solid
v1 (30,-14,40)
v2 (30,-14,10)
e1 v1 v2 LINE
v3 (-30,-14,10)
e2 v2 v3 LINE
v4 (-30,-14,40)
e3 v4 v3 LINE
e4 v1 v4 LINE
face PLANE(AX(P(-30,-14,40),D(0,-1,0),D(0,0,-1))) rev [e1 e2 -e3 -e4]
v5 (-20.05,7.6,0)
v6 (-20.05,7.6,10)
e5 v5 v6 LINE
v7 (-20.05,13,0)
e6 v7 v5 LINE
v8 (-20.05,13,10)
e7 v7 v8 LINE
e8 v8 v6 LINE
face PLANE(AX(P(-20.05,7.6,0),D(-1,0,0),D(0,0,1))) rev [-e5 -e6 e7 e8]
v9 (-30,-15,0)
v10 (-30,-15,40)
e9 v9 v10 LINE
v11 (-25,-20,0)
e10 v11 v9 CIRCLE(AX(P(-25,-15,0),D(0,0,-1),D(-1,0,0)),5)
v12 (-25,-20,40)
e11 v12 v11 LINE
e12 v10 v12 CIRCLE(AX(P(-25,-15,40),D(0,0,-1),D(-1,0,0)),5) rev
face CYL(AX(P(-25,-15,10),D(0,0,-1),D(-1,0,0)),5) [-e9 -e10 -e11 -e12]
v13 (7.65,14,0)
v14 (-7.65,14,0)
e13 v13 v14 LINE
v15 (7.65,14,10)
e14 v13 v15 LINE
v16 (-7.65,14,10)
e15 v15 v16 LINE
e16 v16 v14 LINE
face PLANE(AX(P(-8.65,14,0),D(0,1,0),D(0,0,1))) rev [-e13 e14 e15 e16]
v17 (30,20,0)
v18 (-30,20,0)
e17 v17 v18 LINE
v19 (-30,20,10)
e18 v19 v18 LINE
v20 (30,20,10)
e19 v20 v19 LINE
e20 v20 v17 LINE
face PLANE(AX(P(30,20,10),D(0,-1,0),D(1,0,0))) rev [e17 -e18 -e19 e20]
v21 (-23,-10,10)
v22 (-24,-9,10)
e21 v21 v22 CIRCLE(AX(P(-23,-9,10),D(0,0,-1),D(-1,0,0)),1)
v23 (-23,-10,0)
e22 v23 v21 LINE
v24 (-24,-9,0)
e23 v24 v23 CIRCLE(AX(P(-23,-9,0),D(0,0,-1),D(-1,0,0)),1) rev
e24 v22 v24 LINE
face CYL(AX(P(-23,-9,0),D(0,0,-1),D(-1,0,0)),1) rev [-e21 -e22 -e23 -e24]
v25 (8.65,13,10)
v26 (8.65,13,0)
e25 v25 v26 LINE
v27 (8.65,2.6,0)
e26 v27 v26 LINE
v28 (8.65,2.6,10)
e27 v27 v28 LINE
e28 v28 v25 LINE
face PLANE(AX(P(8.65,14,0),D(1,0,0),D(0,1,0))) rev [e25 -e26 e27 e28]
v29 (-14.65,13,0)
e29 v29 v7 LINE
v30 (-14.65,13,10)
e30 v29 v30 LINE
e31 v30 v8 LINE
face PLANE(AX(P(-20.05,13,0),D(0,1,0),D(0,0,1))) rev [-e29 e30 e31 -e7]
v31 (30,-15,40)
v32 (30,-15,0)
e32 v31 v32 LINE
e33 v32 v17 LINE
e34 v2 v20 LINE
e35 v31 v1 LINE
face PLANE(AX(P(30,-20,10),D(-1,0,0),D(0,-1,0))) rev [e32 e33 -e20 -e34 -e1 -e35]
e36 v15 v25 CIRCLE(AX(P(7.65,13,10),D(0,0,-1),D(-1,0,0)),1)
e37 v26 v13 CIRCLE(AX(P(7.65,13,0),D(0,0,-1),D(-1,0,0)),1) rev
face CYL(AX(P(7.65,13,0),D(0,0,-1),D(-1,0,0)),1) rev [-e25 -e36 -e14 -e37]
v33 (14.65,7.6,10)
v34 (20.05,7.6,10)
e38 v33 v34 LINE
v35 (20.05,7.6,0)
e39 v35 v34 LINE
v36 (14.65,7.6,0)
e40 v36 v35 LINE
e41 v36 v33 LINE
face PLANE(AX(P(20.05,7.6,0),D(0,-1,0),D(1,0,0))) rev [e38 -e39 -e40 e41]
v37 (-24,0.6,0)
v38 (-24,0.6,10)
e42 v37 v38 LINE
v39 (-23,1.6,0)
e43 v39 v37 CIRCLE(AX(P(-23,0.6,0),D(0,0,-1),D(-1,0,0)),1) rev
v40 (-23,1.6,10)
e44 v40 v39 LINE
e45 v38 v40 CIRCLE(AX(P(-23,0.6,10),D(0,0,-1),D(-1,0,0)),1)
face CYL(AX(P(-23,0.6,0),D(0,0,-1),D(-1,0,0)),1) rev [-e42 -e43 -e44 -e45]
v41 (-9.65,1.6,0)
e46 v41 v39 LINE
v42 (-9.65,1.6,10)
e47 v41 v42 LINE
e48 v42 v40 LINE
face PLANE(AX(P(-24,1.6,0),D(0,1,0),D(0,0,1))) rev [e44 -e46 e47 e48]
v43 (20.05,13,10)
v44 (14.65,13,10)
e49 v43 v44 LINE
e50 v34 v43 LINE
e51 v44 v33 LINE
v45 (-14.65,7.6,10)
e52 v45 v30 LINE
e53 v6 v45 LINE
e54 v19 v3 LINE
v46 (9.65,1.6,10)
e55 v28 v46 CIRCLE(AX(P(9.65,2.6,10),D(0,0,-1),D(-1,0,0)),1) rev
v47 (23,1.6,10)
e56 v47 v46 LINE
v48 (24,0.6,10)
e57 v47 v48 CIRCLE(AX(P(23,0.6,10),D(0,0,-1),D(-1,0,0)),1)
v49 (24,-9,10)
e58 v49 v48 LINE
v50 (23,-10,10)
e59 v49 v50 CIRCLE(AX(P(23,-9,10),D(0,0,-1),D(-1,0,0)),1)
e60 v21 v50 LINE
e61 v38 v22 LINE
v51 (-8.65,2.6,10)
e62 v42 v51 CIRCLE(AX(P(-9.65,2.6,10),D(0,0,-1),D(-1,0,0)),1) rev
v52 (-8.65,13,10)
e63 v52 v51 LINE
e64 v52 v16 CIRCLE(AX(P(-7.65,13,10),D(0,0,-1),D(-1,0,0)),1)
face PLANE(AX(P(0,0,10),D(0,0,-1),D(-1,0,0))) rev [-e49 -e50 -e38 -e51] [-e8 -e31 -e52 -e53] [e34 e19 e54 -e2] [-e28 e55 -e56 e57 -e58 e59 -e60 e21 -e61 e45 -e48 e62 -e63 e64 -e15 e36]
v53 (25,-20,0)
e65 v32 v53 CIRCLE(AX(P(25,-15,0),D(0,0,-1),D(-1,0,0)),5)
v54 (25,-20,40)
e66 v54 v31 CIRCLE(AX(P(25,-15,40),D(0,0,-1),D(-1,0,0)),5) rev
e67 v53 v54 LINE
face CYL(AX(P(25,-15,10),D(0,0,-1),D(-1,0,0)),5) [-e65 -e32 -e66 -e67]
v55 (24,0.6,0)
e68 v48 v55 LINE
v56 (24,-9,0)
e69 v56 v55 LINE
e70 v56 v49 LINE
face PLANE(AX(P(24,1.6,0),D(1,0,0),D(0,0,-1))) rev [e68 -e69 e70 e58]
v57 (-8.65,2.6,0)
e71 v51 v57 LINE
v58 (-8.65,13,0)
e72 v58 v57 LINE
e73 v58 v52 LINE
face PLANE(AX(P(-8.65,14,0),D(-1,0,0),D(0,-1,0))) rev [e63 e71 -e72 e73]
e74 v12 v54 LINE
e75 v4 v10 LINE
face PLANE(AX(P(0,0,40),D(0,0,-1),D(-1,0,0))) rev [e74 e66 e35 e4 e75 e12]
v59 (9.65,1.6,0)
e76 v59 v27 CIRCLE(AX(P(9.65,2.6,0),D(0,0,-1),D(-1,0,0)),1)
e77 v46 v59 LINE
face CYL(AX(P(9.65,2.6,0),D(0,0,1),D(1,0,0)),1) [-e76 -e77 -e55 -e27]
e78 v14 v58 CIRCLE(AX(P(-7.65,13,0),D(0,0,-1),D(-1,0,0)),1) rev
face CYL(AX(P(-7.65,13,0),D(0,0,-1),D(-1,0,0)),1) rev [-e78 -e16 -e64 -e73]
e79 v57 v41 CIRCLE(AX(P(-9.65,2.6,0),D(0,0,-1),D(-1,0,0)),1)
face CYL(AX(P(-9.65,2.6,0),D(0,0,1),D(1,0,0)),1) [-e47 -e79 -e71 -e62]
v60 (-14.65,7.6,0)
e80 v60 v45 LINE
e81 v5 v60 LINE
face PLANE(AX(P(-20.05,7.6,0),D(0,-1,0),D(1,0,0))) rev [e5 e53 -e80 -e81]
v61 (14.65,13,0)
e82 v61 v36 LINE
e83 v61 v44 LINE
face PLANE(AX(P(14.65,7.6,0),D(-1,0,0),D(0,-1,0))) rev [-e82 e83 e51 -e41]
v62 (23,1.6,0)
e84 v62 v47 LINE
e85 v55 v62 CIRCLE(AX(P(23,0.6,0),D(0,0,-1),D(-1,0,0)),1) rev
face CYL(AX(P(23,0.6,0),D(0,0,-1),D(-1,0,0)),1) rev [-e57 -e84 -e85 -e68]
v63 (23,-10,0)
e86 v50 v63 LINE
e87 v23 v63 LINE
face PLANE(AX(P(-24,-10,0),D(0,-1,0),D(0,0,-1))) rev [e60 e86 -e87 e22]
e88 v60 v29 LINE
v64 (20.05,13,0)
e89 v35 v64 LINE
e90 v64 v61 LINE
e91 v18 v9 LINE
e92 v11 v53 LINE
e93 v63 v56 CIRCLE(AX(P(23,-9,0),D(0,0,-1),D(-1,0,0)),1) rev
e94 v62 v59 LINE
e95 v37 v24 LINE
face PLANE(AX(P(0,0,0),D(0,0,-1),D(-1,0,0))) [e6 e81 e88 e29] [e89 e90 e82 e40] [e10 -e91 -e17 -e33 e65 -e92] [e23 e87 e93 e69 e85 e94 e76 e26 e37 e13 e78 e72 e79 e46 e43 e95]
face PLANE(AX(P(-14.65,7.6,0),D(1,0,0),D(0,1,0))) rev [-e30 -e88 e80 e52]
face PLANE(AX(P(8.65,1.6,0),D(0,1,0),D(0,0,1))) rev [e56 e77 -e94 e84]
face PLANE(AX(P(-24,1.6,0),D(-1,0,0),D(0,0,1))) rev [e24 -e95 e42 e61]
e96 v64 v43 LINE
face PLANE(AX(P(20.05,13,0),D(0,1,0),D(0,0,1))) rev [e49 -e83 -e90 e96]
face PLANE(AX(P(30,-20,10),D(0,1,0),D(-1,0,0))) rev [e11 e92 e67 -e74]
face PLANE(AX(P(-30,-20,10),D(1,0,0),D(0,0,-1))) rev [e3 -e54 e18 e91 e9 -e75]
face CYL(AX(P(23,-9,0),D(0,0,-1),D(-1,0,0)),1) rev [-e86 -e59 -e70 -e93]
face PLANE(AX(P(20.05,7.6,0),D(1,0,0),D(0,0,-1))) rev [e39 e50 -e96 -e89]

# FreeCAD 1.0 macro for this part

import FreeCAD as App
import Part
import Sketcher

V = App.Vector
Q = App.Units.Quantity


def edges_at(feature, points):
    """Names of the edges that pass closest to the given points."""
    edges = feature.Shape.Edges
    near = lambda p: min(range(len(edges)), key=lambda i: edges[i].distToShape(Part.Vertex(*p))[0])
    return sorted({f"Edge{near(p) + 1}" for p in points})


def add_polygon(sketch, points):
    """Adds a closed chain of lines whose ends are joined by coincident constraints."""
    first, n = sketch.GeometryCount, len(points)
    for a, b in zip(points, points[1:] + points[:1]):
        sketch.addGeometry(Part.LineSegment(App.Vector(*a, 0), App.Vector(*b, 0)), False)
    for i in range(n):
        sketch.addConstraint(Sketcher.Constraint("Coincident", first + i, 2, first + (i + 1) % n, 1))

doc = App.newDocument("Part")
body = doc.addObject("PartDesign::Body", "Body")

# Sketch on XY plane
sketch1 = body.newObject("Sketcher::SketchObject", "Sketch")
sketch1.AttachmentSupport = (doc.getObject("XY_Plane"), [""])
sketch1.MapMode = "FlatFace"
add_polygon(sketch1, [(-30, -20), (30, -20), (30, 20), (-30, 20)])  # lines 0-3
sketch1.addConstraint(Sketcher.Constraint("Horizontal", 0))
sketch1.addConstraint(Sketcher.Constraint("Vertical", 1))
sketch1.addConstraint(Sketcher.Constraint("Horizontal", 2))
sketch1.addConstraint(Sketcher.Constraint("Vertical", 3))
sketch1.addConstraint(Sketcher.Constraint("Symmetric", 0, 2, 2, 2, -1, 1))
sketch1.addConstraint(Sketcher.Constraint("DistanceX", 0, 1, 0, 2, Q("60 mm")))
sketch1.addConstraint(Sketcher.Constraint("DistanceY", 1, 1, 1, 2, Q("40 mm")))
pad1 = body.newObject("PartDesign::Pad", "Pad")
pad1.Profile = sketch1
pad1.Length = 10

# Sketch on XY plane
sketch2 = body.newObject("Sketcher::SketchObject", "Sketch001")
sketch2.AttachmentSupport = (doc.getObject("XY_Plane"), [""])
sketch2.MapMode = "FlatFace"
sketch2.AttachmentOffset = App.Placement(V(0, 0, 10), App.Rotation())
add_polygon(sketch2, [(-20.05, 13), (-20.05, 7.6), (-14.65, 7.6), (-14.65, 13)])  # lines 0-3
add_polygon(sketch2, [(14.65, 13), (14.65, 7.6), (20.05, 7.6), (20.05, 13)])  # lines 4-7
sketch2.addConstraint(Sketcher.Constraint("Vertical", 0))
sketch2.addConstraint(Sketcher.Constraint("Horizontal", 1))
sketch2.addConstraint(Sketcher.Constraint("Vertical", 2))
sketch2.addConstraint(Sketcher.Constraint("Horizontal", 3))
sketch2.addConstraint(Sketcher.Constraint("Vertical", 4))
sketch2.addConstraint(Sketcher.Constraint("Horizontal", 5))
sketch2.addConstraint(Sketcher.Constraint("Vertical", 6))
sketch2.addConstraint(Sketcher.Constraint("Horizontal", 7))
sketch2.addConstraint(Sketcher.Constraint("Symmetric", 1, 2, 4, 2, -2))
sketch2.addConstraint(Sketcher.Constraint("Symmetric", 3, 2, 6, 2, -2))
sketch2.addConstraint(Sketcher.Constraint("Equal", 7, 0))
sketch2.addConstraint(Sketcher.Constraint("DistanceX", 1, 1, 1, 2, Q("5.4 mm")))
sketch2.addConstraint(Sketcher.Constraint("DistanceY", -1, 1, 2, 2, Q("13 mm")))
sketch2.addConstraint(Sketcher.Constraint("DistanceX", 1, 2, 4, 2, Q("29.3 mm")))
pocket1 = body.newObject("PartDesign::Pocket", "Pocket")
pocket1.Profile = sketch2
pocket1.Type = "ThroughAll"

# Sketch on XY plane
sketch3 = body.newObject("Sketcher::SketchObject", "Sketch002")
sketch3.AttachmentSupport = (doc.getObject("XY_Plane"), [""])
sketch3.MapMode = "FlatFace"
sketch3.AttachmentOffset = App.Placement(V(0, 0, 10), App.Rotation())
add_polygon(sketch3, [(-30, -14), (-30, -20), (30, -20), (30, -14)])  # lines 0-3
sketch3.addConstraint(Sketcher.Constraint("Vertical", 0))
sketch3.addConstraint(Sketcher.Constraint("Horizontal", 1))
sketch3.addConstraint(Sketcher.Constraint("Vertical", 2))
sketch3.addConstraint(Sketcher.Constraint("Horizontal", 3))
sketch3.addConstraint(Sketcher.Constraint("DistanceX", 1, 1, 1, 2, Q("60 mm")))
sketch3.addConstraint(Sketcher.Constraint("DistanceY", 0, 2, 0, 1, Q("6 mm")))
sketch3.addConstraint(Sketcher.Constraint("DistanceX", 0, 2, -1, 1, Q("30 mm")))
sketch3.addConstraint(Sketcher.Constraint("DistanceY", 0, 2, -1, 1, Q("20 mm")))
pad2 = body.newObject("PartDesign::Pad", "Pad001")
pad2.Profile = sketch3
pad2.Length = 30

# Sketch on XY plane
sketch4 = body.newObject("Sketcher::SketchObject", "Sketch003")
sketch4.AttachmentSupport = (doc.getObject("XY_Plane"), [""])
sketch4.MapMode = "FlatFace"
sketch4.AttachmentOffset = App.Placement(V(0, 0, 10), App.Rotation())
add_polygon(sketch4, [(-8.65, 1.6), (-24, 1.6), (-24, -10), (24, -10), (24, 1.6), (8.65, 1.6), (8.65, 14), (-8.65, 14)])  # lines 0-7
sketch4.addConstraint(Sketcher.Constraint("Horizontal", 0))
sketch4.addConstraint(Sketcher.Constraint("Vertical", 1))
sketch4.addConstraint(Sketcher.Constraint("Horizontal", 2))
sketch4.addConstraint(Sketcher.Constraint("Vertical", 3))
sketch4.addConstraint(Sketcher.Constraint("Horizontal", 4))
sketch4.addConstraint(Sketcher.Constraint("Vertical", 5))
sketch4.addConstraint(Sketcher.Constraint("Horizontal", 6))
sketch4.addConstraint(Sketcher.Constraint("Vertical", 7))
sketch4.addConstraint(Sketcher.Constraint("Symmetric", 0, 2, 3, 2, -2))
sketch4.addConstraint(Sketcher.Constraint("Equal", 0, 4))
sketch4.addConstraint(Sketcher.Constraint("DistanceX", 2, 1, 2, 2, Q("48 mm")))
sketch4.addConstraint(Sketcher.Constraint("DistanceX", 6, 2, 6, 1, Q("17.3 mm")))
sketch4.addConstraint(Sketcher.Constraint("DistanceY", 1, 2, 1, 1, Q("11.6 mm")))
sketch4.addConstraint(Sketcher.Constraint("DistanceY", 5, 1, 5, 2, Q("12.4 mm")))
sketch4.addConstraint(Sketcher.Constraint("DistanceY", 1, 2, -1, 1, Q("10 mm")))
pocket2 = body.newObject("PartDesign::Pocket", "Pocket001")
pocket2.Profile = sketch4
pocket2.Type = "ThroughAll"
doc.recompute()

fillet = body.newObject("PartDesign::Fillet", "Fillet")
fillet.Base = (pocket2, edges_at(pocket2, [
    (-24, -10, 5),
    (-24, 1.6, 5),
    (-8.65, 1.6, 5),
    (-8.65, 14, 5),
    (8.65, 14, 5),
    (8.65, 1.6, 5),
    (24, 1.6, 5),
    (24, -10, 5),
]))
fillet.Radius = 1
doc.recompute()

fillet2 = body.newObject("PartDesign::Fillet", "Fillet001")
fillet2.Base = (fillet, edges_at(fillet, [(30, -20, 20), (-30, -20, 20)]))
fillet2.Radius = 5

doc.recompute()
